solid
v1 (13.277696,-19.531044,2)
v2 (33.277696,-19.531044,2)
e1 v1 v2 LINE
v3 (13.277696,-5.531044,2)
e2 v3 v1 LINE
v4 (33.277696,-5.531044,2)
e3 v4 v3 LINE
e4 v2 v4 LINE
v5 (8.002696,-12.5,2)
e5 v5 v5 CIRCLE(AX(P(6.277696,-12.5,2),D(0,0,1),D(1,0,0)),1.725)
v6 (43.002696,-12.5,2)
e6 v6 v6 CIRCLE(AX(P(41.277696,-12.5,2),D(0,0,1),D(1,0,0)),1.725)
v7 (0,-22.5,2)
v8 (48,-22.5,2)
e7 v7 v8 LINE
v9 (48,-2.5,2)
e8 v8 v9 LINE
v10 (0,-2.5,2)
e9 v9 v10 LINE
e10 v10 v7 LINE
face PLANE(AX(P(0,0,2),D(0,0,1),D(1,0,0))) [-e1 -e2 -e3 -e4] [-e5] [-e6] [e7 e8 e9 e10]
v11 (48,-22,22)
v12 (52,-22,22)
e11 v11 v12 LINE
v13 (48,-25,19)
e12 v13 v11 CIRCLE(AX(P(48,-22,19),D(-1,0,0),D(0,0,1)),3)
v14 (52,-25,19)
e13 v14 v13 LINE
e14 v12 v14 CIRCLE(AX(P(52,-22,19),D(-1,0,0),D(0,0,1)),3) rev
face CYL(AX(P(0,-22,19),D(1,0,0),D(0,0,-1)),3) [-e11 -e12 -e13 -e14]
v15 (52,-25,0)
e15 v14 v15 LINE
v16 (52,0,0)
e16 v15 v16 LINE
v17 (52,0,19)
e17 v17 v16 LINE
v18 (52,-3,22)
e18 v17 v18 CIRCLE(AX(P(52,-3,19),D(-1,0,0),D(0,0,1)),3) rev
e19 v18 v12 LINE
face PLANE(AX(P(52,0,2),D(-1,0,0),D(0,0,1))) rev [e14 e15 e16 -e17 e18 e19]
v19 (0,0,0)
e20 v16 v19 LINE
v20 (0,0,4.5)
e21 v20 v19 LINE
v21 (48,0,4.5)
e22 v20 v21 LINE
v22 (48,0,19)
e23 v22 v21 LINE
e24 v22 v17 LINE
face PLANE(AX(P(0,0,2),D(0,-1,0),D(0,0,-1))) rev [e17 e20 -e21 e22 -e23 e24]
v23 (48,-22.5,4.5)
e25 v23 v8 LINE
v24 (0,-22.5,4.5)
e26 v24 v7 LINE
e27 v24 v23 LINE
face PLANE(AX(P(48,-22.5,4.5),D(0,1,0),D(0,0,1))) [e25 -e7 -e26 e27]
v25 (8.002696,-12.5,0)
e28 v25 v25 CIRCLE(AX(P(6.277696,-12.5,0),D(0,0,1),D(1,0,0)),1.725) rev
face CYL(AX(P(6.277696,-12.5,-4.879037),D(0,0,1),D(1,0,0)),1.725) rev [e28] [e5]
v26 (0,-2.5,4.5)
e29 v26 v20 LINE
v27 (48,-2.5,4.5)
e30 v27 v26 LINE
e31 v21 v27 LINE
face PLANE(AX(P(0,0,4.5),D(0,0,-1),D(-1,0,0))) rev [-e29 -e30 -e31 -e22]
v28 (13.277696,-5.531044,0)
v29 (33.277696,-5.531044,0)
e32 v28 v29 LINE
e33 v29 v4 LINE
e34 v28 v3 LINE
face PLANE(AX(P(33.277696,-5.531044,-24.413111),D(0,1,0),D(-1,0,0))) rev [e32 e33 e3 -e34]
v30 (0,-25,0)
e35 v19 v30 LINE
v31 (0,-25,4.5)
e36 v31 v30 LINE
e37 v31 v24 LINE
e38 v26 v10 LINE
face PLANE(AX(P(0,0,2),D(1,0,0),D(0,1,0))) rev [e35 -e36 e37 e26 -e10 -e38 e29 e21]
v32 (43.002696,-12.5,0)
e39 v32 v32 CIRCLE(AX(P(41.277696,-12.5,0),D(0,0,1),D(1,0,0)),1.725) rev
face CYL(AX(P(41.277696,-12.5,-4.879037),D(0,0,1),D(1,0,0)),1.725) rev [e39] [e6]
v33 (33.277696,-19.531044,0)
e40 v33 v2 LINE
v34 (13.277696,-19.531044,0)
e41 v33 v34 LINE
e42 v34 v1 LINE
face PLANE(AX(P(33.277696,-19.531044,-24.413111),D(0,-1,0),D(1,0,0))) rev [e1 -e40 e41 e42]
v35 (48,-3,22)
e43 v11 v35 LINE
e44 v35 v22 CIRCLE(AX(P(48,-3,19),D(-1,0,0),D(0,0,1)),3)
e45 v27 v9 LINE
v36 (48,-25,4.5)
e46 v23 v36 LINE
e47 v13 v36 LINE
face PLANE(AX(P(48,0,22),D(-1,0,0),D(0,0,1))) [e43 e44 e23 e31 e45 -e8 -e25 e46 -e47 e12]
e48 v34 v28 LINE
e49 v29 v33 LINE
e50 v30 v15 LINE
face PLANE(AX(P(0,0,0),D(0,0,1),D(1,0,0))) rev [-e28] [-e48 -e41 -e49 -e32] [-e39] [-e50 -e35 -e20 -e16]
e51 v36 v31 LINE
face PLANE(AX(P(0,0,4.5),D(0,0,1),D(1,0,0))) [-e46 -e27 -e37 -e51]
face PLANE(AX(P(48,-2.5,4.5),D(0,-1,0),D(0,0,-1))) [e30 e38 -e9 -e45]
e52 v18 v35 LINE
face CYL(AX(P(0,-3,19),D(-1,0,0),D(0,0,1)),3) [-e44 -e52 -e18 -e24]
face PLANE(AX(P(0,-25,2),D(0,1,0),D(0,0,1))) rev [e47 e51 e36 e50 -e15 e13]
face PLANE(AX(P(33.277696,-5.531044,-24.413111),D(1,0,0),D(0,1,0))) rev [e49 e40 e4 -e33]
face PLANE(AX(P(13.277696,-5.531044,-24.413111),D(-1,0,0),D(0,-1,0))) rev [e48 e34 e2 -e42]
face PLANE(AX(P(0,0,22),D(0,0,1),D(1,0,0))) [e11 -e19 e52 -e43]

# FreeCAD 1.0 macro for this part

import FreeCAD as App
import Part
import Sketcher

V = App.Vector


def edges_at(feature, points):
    """Names of the edges that pass closest to the given points."""
    edges = feature.Shape.Edges
    near = lambda p: min(range(len(edges)), key=lambda i: edges[i].distToShape(Part.Vertex(*p))[0])
    return sorted({f"Edge{near(p) + 1}" for p in points})


def add_polygon(sketch, points):
    """Adds a closed chain of lines whose ends are joined by coincident constraints."""
    first, n = sketch.GeometryCount, len(points)
    for a, b in zip(points, points[1:] + points[:1]):
        sketch.addGeometry(Part.LineSegment(App.Vector(*a, 0), App.Vector(*b, 0)), False)
    for i in range(n):
        sketch.addConstraint(Sketcher.Constraint("Coincident", first + i, 2, first + (i + 1) % n, 1))

doc = App.newDocument("Part")
body = doc.addObject("PartDesign::Body", "Body")

# Sketch on XY plane
sketch1 = body.newObject("Sketcher::SketchObject", "Sketch")
sketch1.AttachmentSupport = (doc.getObject("XY_Plane"), [""])
sketch1.MapMode = "FlatFace"
add_polygon(sketch1, [(0, 0), (0, -25), (52, -25), (52, 0)])  # lines 0-3
sketch1.addConstraint([
    Sketcher.Constraint("Vertical", 0),
    Sketcher.Constraint("Horizontal", 1),
    Sketcher.Constraint("Vertical", 2),
    Sketcher.Constraint("Horizontal", 3),
    Sketcher.Constraint("Coincident", 3, 2, -1, 1),
    Sketcher.Constraint("DistanceX", 1, 1, 1, 2, 52.0),
    Sketcher.Constraint("DistanceY", 0, 2, 0, 1, 25.0),
])
pad1 = body.newObject("PartDesign::Pad", "Pad")
pad1.Profile = sketch1
pad1.Length = 2

# Sketch on XY plane
sketch2 = body.newObject("Sketcher::SketchObject", "Sketch001")
sketch2.AttachmentSupport = (doc.getObject("XY_Plane"), [""])
sketch2.MapMode = "FlatFace"
sketch2.AttachmentOffset = App.Placement(V(0, 0, 2), App.Rotation())
add_polygon(sketch2, [(52, 0), (52, -25), (48, -25), (48, 0)])  # lines 0-3
sketch2.addConstraint([
    Sketcher.Constraint("Vertical", 0),
    Sketcher.Constraint("Horizontal", 1),
    Sketcher.Constraint("Vertical", 2),
    Sketcher.Constraint("Horizontal", 3),
    Sketcher.Constraint("PointOnObject", 2, 2, -1),
    Sketcher.Constraint("DistanceX", 1, 2, 1, 1, 4.0),
    Sketcher.Constraint("DistanceY", 0, 2, 0, 1, 25.0),
    Sketcher.Constraint("DistanceX", -1, 1, 0, 2, 52.0),
])
pad2 = body.newObject("PartDesign::Pad", "Pad001")
pad2.Profile = sketch2
pad2.Length = 20
doc.recompute()

fillet = body.newObject("PartDesign::Fillet", "Fillet")
fillet.Base = (pad2, edges_at(pad2, [(50, -25, 22), (50, 0, 22)]))
fillet.Radius = 3

# Sketch on XY plane
sketch3 = body.newObject("Sketcher::SketchObject", "Sketch002")
sketch3.AttachmentSupport = (doc.getObject("XY_Plane"), [""])
sketch3.MapMode = "FlatFace"
sketch3.AttachmentOffset = App.Placement(V(0, 0, 2), App.Rotation())
sketch3.addGeometry([
    Part.Circle(V(41.3, -12.5, 0), V(0, 0, 1), 1.7),
    Part.Circle(V(6.3, -12.5, 0), V(0, 0, 1), 1.7),
], False)
sketch3.addConstraint([
    Sketcher.Constraint("Equal", 0, 1),
    Sketcher.Constraint("Horizontal", 0, 3, 1, 3),
    Sketcher.Constraint("Diameter", 0, 3.45),
    Sketcher.Constraint("DistanceX", 1, 3, 0, 3, 35.0),
    Sketcher.Constraint("DistanceY", 0, 3, -1, 1, 12.5),
    Sketcher.Constraint("DistanceX", -1, 1, 0, 3, 41.277696),
])
pocket1 = body.newObject("PartDesign::Pocket", "Pocket")
pocket1.Profile = sketch3
pocket1.Length = 2

# Sketch on XY plane
sketch4 = body.newObject("Sketcher::SketchObject", "Sketch003")
sketch4.AttachmentSupport = (doc.getObject("XY_Plane"), [""])
sketch4.MapMode = "FlatFace"
sketch4.AttachmentOffset = App.Placement(V(0, 0, 2), App.Rotation())
add_polygon(sketch4, [(48, -22.5), (48, -25), (0, -25), (0, -22.5)])  # lines 0-3
add_polygon(sketch4, [(48, 0), (48, -2.5), (0, -2.5), (0, 0)])  # lines 4-7
sketch4.addConstraint([
    Sketcher.Constraint("Vertical", 0),
    Sketcher.Constraint("Horizontal", 1),
    Sketcher.Constraint("Vertical", 2),
    Sketcher.Constraint("Horizontal", 3),
    Sketcher.Constraint("Vertical", 4),
    Sketcher.Constraint("Horizontal", 5),
    Sketcher.Constraint("Vertical", 6),
    Sketcher.Constraint("Horizontal", 7),
    Sketcher.Constraint("Coincident", 6, 2, -1, 1),
    Sketcher.Constraint("PointOnObject", 1, 2, -2),
    Sketcher.Constraint("Vertical", 3, 2, 4, 2),
    Sketcher.Constraint("Equal", 2, 4),
    Sketcher.Constraint("DistanceX", 1, 2, 1, 1, 48.0),
    Sketcher.Constraint("DistanceY", 0, 2, 0, 1, 2.5),
    Sketcher.Constraint("DistanceY", 0, 2, -1, 1, 25.0),
])
pad3 = body.newObject("PartDesign::Pad", "Pad002")
pad3.Profile = sketch4
pad3.Length = 2.5

# Sketch on XY plane
sketch5 = body.newObject("Sketcher::SketchObject", "Sketch004")
sketch5.AttachmentSupport = (doc.getObject("XY_Plane"), [""])
sketch5.MapMode = "FlatFace"
sketch5.AttachmentOffset = App.Placement(V(0, 0, 2), App.Rotation())
add_polygon(sketch5, [(13, -6), (13, -20), (33, -20), (33, -6)])  # lines 0-3
sketch5.addConstraint([
    Sketcher.Constraint("Vertical", 0),
    Sketcher.Constraint("Horizontal", 1),
    Sketcher.Constraint("Vertical", 2),
    Sketcher.Constraint("Horizontal", 3),
    Sketcher.Constraint("DistanceX", 1, 1, 1, 2, 20.0),
    Sketcher.Constraint("DistanceY", 0, 2, 0, 1, 14.0),
    Sketcher.Constraint("DistanceX", -1, 1, 0, 2, 13.277696),
    Sketcher.Constraint("DistanceY", 0, 2, -1, 1, 19.531044),
])
pocket2 = body.newObject("PartDesign::Pocket", "Pocket001")
pocket2.Profile = sketch5
pocket2.Length = 2

doc.recompute()
